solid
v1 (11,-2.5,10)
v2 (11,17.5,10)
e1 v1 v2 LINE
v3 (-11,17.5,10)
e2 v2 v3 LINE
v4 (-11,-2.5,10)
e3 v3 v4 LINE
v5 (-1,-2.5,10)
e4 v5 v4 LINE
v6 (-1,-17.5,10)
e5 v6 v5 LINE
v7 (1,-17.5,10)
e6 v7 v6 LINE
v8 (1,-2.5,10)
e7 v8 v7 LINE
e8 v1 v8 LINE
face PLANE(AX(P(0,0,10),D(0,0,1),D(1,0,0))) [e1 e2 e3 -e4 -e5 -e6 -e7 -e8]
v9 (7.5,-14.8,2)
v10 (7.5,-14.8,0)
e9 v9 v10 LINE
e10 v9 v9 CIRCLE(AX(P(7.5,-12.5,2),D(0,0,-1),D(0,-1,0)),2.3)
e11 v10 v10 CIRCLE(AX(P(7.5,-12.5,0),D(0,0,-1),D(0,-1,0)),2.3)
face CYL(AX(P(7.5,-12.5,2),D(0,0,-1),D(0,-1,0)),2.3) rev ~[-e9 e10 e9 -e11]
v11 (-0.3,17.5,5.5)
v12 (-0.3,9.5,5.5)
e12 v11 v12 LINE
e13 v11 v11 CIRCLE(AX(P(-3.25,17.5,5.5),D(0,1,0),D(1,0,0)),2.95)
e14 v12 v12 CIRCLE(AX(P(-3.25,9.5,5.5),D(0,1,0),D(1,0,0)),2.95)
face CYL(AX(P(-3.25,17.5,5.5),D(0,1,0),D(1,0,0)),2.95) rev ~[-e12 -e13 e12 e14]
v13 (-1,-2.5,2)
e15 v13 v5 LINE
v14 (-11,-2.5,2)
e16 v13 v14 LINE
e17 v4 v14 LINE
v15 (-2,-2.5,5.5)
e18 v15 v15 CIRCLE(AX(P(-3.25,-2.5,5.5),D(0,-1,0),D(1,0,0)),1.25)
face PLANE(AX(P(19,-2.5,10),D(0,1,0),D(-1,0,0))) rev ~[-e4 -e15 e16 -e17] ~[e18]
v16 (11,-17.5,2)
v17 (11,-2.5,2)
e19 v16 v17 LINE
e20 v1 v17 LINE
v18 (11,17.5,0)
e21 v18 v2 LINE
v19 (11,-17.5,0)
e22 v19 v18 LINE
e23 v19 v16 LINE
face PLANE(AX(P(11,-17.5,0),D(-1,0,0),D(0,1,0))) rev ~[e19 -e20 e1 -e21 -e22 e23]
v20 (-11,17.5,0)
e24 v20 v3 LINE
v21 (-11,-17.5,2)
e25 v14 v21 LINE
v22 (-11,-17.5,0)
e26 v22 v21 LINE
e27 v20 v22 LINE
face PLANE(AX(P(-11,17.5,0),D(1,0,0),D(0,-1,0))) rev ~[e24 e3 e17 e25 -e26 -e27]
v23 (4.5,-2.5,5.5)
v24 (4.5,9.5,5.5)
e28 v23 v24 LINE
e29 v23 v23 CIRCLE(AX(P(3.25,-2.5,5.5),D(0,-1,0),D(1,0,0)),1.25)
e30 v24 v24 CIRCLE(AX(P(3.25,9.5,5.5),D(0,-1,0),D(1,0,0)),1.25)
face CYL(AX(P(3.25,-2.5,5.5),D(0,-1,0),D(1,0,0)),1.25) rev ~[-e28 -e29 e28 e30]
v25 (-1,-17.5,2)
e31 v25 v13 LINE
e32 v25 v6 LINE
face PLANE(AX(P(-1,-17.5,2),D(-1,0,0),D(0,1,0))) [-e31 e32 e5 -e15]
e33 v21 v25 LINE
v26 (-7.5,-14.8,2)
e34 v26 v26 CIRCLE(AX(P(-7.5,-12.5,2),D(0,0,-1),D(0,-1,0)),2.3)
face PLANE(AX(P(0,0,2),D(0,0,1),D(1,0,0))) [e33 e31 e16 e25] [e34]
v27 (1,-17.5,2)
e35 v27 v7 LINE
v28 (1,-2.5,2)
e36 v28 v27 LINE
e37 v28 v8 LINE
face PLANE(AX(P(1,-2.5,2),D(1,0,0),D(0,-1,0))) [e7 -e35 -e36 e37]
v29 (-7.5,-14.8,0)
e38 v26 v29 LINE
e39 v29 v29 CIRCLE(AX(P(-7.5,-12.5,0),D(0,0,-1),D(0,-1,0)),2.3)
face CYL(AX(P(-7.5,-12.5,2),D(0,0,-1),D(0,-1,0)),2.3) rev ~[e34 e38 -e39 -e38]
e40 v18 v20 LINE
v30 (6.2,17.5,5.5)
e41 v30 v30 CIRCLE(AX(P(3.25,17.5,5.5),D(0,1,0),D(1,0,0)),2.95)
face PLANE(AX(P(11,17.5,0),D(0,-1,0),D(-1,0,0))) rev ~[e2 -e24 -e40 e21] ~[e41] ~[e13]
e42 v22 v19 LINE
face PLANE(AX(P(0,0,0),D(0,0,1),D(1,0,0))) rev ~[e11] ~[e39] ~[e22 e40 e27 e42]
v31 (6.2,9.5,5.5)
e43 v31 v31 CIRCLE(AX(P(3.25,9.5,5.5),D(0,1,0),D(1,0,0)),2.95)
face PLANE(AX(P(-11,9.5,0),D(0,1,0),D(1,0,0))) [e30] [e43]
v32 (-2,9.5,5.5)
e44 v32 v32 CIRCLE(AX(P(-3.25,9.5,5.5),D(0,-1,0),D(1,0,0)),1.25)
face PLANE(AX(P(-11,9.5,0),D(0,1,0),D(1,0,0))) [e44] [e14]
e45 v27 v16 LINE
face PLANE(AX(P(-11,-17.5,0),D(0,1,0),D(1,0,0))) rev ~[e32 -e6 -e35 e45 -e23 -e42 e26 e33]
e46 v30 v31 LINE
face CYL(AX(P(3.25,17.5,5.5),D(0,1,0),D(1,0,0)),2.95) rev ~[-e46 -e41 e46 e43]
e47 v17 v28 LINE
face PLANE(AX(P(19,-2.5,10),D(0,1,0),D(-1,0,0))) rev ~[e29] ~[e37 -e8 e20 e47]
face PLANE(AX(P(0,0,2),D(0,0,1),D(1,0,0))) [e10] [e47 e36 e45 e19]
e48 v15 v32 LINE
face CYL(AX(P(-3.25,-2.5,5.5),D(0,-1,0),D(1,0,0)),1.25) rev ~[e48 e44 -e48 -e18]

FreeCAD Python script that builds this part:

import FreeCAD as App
import Part
import Sketcher
Q = App.Units.Quantity

doc = App.newDocument("Part")
body = doc.addObject("PartDesign::Body", "Body")

sketch1 = body.newObject("Sketcher::SketchObject", "Sketch")
sketch1.AttachmentSupport = (doc.getObject("XY_Plane"), [""])
sketch1.MapMode = "FlatFace"
sketch1.addGeometry(Part.LineSegment(App.Vector(-11, 17.5, 0), App.Vector(-11, -17.5, 0)), False)
sketch1.addGeometry(Part.LineSegment(App.Vector(-11, -17.5, 0), App.Vector(11, -17.5, 0)), False)
sketch1.addGeometry(Part.LineSegment(App.Vector(11, -17.5, 0), App.Vector(11, 17.5, 0)), False)
sketch1.addGeometry(Part.LineSegment(App.Vector(11, 17.5, 0), App.Vector(-11, 17.5, 0)), False)
sketch1.addConstraint(Sketcher.Constraint("Coincident", 0, 2, 1, 1))
sketch1.addConstraint(Sketcher.Constraint("Coincident", 1, 2, 2, 1))
sketch1.addConstraint(Sketcher.Constraint("Coincident", 2, 2, 3, 1))
sketch1.addConstraint(Sketcher.Constraint("Coincident", 3, 2, 0, 1))
sketch1.addConstraint(Sketcher.Constraint("Vertical", 0))
sketch1.addConstraint(Sketcher.Constraint("Horizontal", 1))
sketch1.addConstraint(Sketcher.Constraint("Vertical", 2))
sketch1.addConstraint(Sketcher.Constraint("Horizontal", 3))
sketch1.addConstraint(Sketcher.Constraint("Symmetric", 0, 2, 2, 2, -1, 1))
sketch1.addConstraint(Sketcher.Constraint("DistanceX", 1, 1, 1, 2, Q("22 mm")))
sketch1.addConstraint(Sketcher.Constraint("DistanceY", 0, 2, 0, 1, Q("35 mm")))
pad1 = body.newObject("PartDesign::Pad", "Pad")
pad1.Profile = sketch1
pad1.Length = 10

sketch2 = body.newObject("Sketcher::SketchObject", "Sketch001")
sketch2.AttachmentSupport = (doc.getObject("XY_Plane"), [""])
sketch2.MapMode = "FlatFace"
sketch2.AttachmentOffset = App.Placement(App.Vector(0, 0, 10), App.Rotation())
sketch2.addGeometry(Part.LineSegment(App.Vector(-11, -2.5, 0), App.Vector(-11, -17.5, 0)), False)
sketch2.addGeometry(Part.LineSegment(App.Vector(-11, -17.5, 0), App.Vector(19, -17.5, 0)), False)
sketch2.addGeometry(Part.LineSegment(App.Vector(19, -17.5, 0), App.Vector(19, -2.5, 0)), False)
sketch2.addGeometry(Part.LineSegment(App.Vector(19, -2.5, 0), App.Vector(-11, -2.5, 0)), False)
sketch2.addConstraint(Sketcher.Constraint("Coincident", 0, 2, 1, 1))
sketch2.addConstraint(Sketcher.Constraint("Coincident", 1, 2, 2, 1))
sketch2.addConstraint(Sketcher.Constraint("Coincident", 2, 2, 3, 1))
sketch2.addConstraint(Sketcher.Constraint("Coincident", 3, 2, 0, 1))
sketch2.addConstraint(Sketcher.Constraint("Vertical", 0))
sketch2.addConstraint(Sketcher.Constraint("Horizontal", 1))
sketch2.addConstraint(Sketcher.Constraint("Vertical", 2))
sketch2.addConstraint(Sketcher.Constraint("Horizontal", 3))
sketch2.addConstraint(Sketcher.Constraint("DistanceX", 1, 1, 1, 2, Q("30 mm")))
sketch2.addConstraint(Sketcher.Constraint("DistanceY", 0, 2, 0, 1, Q("15 mm")))
sketch2.addConstraint(Sketcher.Constraint("DistanceX", 0, 2, -1, 1, Q("11 mm")))
sketch2.addConstraint(Sketcher.Constraint("DistanceY", 0, 2, -1, 1, Q("17.5 mm")))
pocket1 = body.newObject("PartDesign::Pocket", "Pocket")
pocket1.Profile = sketch2
pocket1.Length = 8

sketch3 = body.newObject("Sketcher::SketchObject", "Sketch002")
sketch3.AttachmentSupport = (doc.getObject("XY_Plane"), [""])
sketch3.MapMode = "FlatFace"
sketch3.AttachmentOffset = App.Placement(App.Vector(0, 0, 2), App.Rotation())
sketch3.addGeometry(Part.Circle(App.Vector(-7.5, -12.5, 0), App.Vector(0, 0, 1), 2.3), False)
sketch3.addGeometry(Part.Circle(App.Vector(7.5, -12.5, 0), App.Vector(0, 0, 1), 2.3), False)
sketch3.addConstraint(Sketcher.Constraint("Equal", 0, 1))
sketch3.addConstraint(Sketcher.Constraint("Symmetric", 0, 3, 1, 3, -2))
sketch3.addConstraint(Sketcher.Constraint("Diameter", 0, Q("4.6 mm")))
sketch3.addConstraint(Sketcher.Constraint("DistanceX", 0, 3, 1, 3, Q("15 mm")))
sketch3.addConstraint(Sketcher.Constraint("DistanceY", 0, 3, -1, 1, Q("12.5 mm")))
doc.recompute()
hole = body.newObject("PartDesign::Hole", "Hole")
hole.Profile = sketch3
hole.ThreadType = "None"
hole.Diameter = 4.6
hole.DepthType = "ThroughAll"

sketch4 = body.newObject("Sketcher::SketchObject", "Sketch003")
sketch4.AttachmentSupport = (doc.getObject("XZ_Plane"), [""])
sketch4.MapMode = "FlatFace"
sketch4.AttachmentOffset = App.Placement(App.Vector(0, 0, -17.5), App.Rotation())
sketch4.addGeometry(Part.Circle(App.Vector(-3.25, 5.5, 0), App.Vector(0, 0, 1), 2.95), False)
sketch4.addGeometry(Part.Circle(App.Vector(3.25, 5.5, 0), App.Vector(0, 0, 1), 2.95), False)
sketch4.addConstraint(Sketcher.Constraint("Equal", 0, 1))
sketch4.addConstraint(Sketcher.Constraint("Symmetric", 0, 3, 1, 3, -2))
sketch4.addConstraint(Sketcher.Constraint("Diameter", 0, Q("5.9 mm")))
sketch4.addConstraint(Sketcher.Constraint("DistanceX", 0, 3, 1, 3, Q("6.5 mm")))
sketch4.addConstraint(Sketcher.Constraint("DistanceY", -1, 1, 0, 3, Q("5.5 mm")))
pocket2 = body.newObject("PartDesign::Pocket", "Pocket001")
pocket2.Profile = sketch4
pocket2.Length = 8
pocket2.Reversed = True

sketch5 = body.newObject("Sketcher::SketchObject", "Sketch004")
sketch5.AttachmentSupport = (doc.getObject("XZ_Plane"), [""])
sketch5.MapMode = "FlatFace"
sketch5.AttachmentOffset = App.Placement(App.Vector(0, 0, 2.5), App.Rotation())
sketch5.addGeometry(Part.Circle(App.Vector(-3.25, 5.5, 0), App.Vector(0, 0, 1), 1.25), False)
sketch5.addConstraint(Sketcher.Constraint("Diameter", 0, Q("2.5 mm")))
sketch5.addConstraint(Sketcher.Constraint("DistanceY", -1, 1, 0, 3, Q("5.5 mm")))
sketch5.addConstraint(Sketcher.Constraint("DistanceX", 0, 3, -1, 1, Q("3.25 mm")))
pocket3 = body.newObject("PartDesign::Pocket", "Pocket002")
pocket3.Profile = sketch5
pocket3.Type = "UpToFirst"

sketch6 = body.newObject("Sketcher::SketchObject", "Sketch005")
sketch6.AttachmentSupport = (doc.getObject("XZ_Plane"), [""])
sketch6.MapMode = "FlatFace"
sketch6.AttachmentOffset = App.Placement(App.Vector(0, 0, 2.5), App.Rotation())
sketch6.addGeometry(Part.Circle(App.Vector(3.25, 5.5, 0), App.Vector(0, 0, 1), 1.25), False)
sketch6.addConstraint(Sketcher.Constraint("Diameter", 0, Q("2.5 mm")))
sketch6.addConstraint(Sketcher.Constraint("DistanceY", -1, 1, 0, 3, Q("5.5 mm")))
sketch6.addConstraint(Sketcher.Constraint("DistanceX", -1, 1, 0, 3, Q("3.25 mm")))
pocket4 = body.newObject("PartDesign::Pocket", "Pocket003")
pocket4.Profile = sketch6
pocket4.Type = "UpToFirst"

sketch7 = body.newObject("Sketcher::SketchObject", "Sketch006")
sketch7.AttachmentSupport = (doc.getObject("XY_Plane"), [""])
sketch7.MapMode = "FlatFace"
sketch7.AttachmentOffset = App.Placement(App.Vector(0, 0, 2), App.Rotation())
sketch7.addGeometry(Part.LineSegment(App.Vector(1, -2.5, 0), App.Vector(-1, -2.5, 0)), False)
sketch7.addGeometry(Part.LineSegment(App.Vector(-1, -2.5, 0), App.Vector(-1, -17.5, 0)), False)
sketch7.addGeometry(Part.LineSegment(App.Vector(-1, -17.5, 0), App.Vector(1, -17.5, 0)), False)
sketch7.addGeometry(Part.LineSegment(App.Vector(1, -17.5, 0), App.Vector(1, -2.5, 0)), False)
sketch7.addConstraint(Sketcher.Constraint("Coincident", 0, 2, 1, 1))
sketch7.addConstraint(Sketcher.Constraint("Coincident", 1, 2, 2, 1))
sketch7.addConstraint(Sketcher.Constraint("Coincident", 2, 2, 3, 1))
sketch7.addConstraint(Sketcher.Constraint("Coincident", 3, 2, 0, 1))
sketch7.addConstraint(Sketcher.Constraint("Horizontal", 0))
sketch7.addConstraint(Sketcher.Constraint("Vertical", 1))
sketch7.addConstraint(Sketcher.Constraint("Horizontal", 2))
sketch7.addConstraint(Sketcher.Constraint("Vertical", 3))
sketch7.addConstraint(Sketcher.Constraint("DistanceX", 0, 2, 0, 1, Q("2 mm")))
sketch7.addConstraint(Sketcher.Constraint("DistanceY", 1, 2, 1, 1, Q("15 mm")))
sketch7.addConstraint(Sketcher.Constraint("DistanceX", 0, 2, -1, 1, Q("1 mm")))
sketch7.addConstraint(Sketcher.Constraint("DistanceY", 0, 2, -1, 1, Q("2.5 mm")))
pad2 = body.newObject("PartDesign::Pad", "Pad001")
pad2.Profile = sketch7
pad2.Length = 8

doc.recompute()
